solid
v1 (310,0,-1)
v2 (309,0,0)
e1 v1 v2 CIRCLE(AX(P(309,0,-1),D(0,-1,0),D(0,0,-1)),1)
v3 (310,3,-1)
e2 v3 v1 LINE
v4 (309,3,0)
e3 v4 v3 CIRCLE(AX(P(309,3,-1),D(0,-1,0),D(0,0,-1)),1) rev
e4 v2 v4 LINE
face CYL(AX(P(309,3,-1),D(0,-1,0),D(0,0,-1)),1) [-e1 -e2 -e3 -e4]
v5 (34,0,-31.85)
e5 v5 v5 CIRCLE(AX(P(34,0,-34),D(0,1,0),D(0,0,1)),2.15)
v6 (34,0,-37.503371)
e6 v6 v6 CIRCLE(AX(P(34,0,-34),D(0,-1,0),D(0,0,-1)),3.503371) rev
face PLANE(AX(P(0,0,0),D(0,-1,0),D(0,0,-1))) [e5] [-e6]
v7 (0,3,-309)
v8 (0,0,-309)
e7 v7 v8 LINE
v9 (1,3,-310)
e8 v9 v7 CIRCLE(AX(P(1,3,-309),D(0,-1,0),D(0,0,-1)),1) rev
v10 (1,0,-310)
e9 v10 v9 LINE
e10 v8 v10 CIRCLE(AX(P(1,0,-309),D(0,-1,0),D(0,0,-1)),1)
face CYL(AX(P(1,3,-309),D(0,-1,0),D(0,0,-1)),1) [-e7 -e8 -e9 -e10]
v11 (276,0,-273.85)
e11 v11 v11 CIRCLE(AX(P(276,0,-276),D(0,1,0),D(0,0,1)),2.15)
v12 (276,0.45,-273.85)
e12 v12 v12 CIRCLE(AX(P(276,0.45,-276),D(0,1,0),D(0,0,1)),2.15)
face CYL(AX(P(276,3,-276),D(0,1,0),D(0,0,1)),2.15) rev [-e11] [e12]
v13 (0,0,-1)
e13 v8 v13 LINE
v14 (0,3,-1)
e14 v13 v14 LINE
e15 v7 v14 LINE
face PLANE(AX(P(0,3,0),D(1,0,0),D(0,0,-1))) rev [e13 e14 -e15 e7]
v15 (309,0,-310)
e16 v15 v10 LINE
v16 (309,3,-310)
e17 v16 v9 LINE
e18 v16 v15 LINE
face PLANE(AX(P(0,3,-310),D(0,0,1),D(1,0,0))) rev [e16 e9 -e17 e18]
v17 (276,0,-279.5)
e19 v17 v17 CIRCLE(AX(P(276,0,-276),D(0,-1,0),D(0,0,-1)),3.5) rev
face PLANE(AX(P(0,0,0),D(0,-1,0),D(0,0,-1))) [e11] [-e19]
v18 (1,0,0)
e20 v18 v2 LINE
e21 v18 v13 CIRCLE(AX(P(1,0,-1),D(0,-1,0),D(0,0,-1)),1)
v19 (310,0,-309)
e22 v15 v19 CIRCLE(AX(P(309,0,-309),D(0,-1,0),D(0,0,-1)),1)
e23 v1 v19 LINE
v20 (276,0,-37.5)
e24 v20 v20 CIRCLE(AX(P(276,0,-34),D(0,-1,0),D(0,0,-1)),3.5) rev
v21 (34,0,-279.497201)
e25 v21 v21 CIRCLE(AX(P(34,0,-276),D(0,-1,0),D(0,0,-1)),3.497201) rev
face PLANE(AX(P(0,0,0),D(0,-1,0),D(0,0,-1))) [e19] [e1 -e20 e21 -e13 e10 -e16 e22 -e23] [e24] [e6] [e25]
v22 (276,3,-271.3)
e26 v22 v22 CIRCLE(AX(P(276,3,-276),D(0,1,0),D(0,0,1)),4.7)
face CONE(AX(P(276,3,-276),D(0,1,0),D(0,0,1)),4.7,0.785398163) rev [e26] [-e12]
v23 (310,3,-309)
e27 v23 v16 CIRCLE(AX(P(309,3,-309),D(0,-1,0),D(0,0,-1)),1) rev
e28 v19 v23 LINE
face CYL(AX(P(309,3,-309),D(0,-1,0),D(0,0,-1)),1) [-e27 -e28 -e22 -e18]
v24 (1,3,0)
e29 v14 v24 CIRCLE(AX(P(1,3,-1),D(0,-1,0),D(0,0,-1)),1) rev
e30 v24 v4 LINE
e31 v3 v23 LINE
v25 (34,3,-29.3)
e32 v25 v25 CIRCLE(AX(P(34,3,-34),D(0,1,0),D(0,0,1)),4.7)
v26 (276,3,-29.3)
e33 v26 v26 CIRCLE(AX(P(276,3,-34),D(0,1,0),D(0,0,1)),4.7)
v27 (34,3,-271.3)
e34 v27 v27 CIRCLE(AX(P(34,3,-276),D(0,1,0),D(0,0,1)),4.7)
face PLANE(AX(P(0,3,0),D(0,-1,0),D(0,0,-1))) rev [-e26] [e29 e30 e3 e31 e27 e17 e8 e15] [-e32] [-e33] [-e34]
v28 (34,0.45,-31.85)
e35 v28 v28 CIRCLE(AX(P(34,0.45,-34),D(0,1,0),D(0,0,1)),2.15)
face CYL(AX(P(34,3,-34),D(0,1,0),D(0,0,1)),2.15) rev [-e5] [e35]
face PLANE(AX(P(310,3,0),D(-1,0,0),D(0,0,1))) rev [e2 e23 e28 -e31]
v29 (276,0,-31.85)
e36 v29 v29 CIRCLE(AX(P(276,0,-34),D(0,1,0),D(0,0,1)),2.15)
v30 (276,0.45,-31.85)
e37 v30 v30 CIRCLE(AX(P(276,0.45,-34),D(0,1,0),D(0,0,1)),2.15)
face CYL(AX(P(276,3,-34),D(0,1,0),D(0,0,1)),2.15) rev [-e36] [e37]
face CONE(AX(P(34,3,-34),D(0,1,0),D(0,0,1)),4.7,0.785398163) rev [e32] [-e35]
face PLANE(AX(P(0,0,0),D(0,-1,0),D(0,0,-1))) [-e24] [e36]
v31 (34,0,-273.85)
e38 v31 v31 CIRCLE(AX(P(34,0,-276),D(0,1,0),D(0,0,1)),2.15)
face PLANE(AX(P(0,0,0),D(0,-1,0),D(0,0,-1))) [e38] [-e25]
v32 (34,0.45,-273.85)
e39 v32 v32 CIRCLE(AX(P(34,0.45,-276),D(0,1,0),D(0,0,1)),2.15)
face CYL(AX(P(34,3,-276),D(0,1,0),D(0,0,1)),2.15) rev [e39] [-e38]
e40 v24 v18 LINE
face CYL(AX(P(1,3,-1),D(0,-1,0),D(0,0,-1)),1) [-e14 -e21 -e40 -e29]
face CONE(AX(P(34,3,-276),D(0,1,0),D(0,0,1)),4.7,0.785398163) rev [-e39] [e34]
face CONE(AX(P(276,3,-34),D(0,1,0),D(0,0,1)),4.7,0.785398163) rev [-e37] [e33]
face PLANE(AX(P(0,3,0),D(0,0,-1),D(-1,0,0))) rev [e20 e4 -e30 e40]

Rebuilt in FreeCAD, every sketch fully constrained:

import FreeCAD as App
import Part
import Sketcher
Q = App.Units.Quantity


def edges_at(feature, points):
    """Names of the edges that pass closest to the given points."""
    edges = feature.Shape.Edges
    near = lambda p: min(range(len(edges)), key=lambda i: edges[i].distToShape(Part.Vertex(*p))[0])
    return sorted({f"Edge{near(p) + 1}" for p in points})


def add_polygon(sketch, points):
    """Adds a closed chain of lines whose ends are joined by coincident constraints."""
    first, n = sketch.GeometryCount, len(points)
    for a, b in zip(points, points[1:] + points[:1]):
        sketch.addGeometry(Part.LineSegment(App.Vector(*a, 0), App.Vector(*b, 0)), False)
    for i in range(n):
        sketch.addConstraint(Sketcher.Constraint("Coincident", first + i, 2, first + (i + 1) % n, 1))

doc = App.newDocument("Part")
body = doc.addObject("PartDesign::Body", "Body")

# Sketch on XZ plane
sketch1 = doc.addObject("Sketcher::SketchObject", "Sketch")
body.addObject(sketch1)
sketch1.AttachmentSupport = (doc.XZ_Plane, [""])
sketch1.MapMode = "FlatFace"
add_polygon(sketch1, [(0, -310), (0, 0), (310, 0), (310, -310)])  # lines 0-3
sketch1.addConstraint([
    Sketcher.Constraint("Vertical", 0),
    Sketcher.Constraint("Horizontal", 1),
    Sketcher.Constraint("Vertical", 2),
    Sketcher.Constraint("Horizontal", 3),
    Sketcher.Constraint("Coincident", 0, 2, -1, 1),
    Sketcher.Constraint("Equal", 3, 0),
    Sketcher.Constraint("DistanceX", 1, 1, 1, 2, 310.0),
])
pad1 = doc.addObject("PartDesign::Pad", "Pad")
body.addObject(pad1)
pad1.Profile = sketch1
pad1.Length = 3
pad1.Reversed = True
doc.recompute()

fillet = doc.addObject("PartDesign::Fillet", "Fillet")
body.addObject(fillet)
fillet.Base = (pad1, edges_at(pad1, [
    (0, 1.5, -310),
    (310, 1.5, -310),
    (310, 1.5, 0),
    (0, 1.5, 0),
]))
fillet.Radius = 1

# Sketch on YZ plane
sketch2 = doc.addObject("Sketcher::SketchObject", "Sketch001")
body.addObject(sketch2)
sketch2.AttachmentSupport = (doc.YZ_Plane, [""])
sketch2.MapMode = "FlatFace"
sketch2.AttachmentOffset = App.Placement(App.Vector(0, 0, 34), App.Rotation())
add_polygon(sketch2, [(0, -276), (3, -276), (3, -271.3), (0.45, -273.85), (0, -273.85)])  # lines 0-4
sketch2.addGeometry(Part.LineSegment(App.Vector(3, -276, 0), App.Vector(0, -276, 0)), True)  # axis
sketch2.addConstraint([
    Sketcher.Constraint("Horizontal", 0),
    Sketcher.Constraint("Vertical", 1),
    Sketcher.Constraint("Horizontal", 3),
    Sketcher.Constraint("Vertical", 4),
    Sketcher.Constraint("Horizontal", 5),
    Sketcher.Constraint("Coincident", 5, 1, 0, 2),
    Sketcher.Constraint("PointOnObject", 3, 2, -2),
    Sketcher.Constraint("PointOnObject", 5, 2, -2),
    Sketcher.Constraint("DistanceX", 0, 1, 0, 2, 3.0),
    Sketcher.Constraint("Angle", 2, Q("-135 deg")),
    Sketcher.Constraint("DistanceY", 1, 1, 1, 2, 4.7),
    Sketcher.Constraint("DistanceY", 0, 2, -1, 1, 276.0),
    Sketcher.Constraint("DistanceX", 3, 2, 3, 1, 0.45),
])
groove = doc.addObject("PartDesign::Groove", "Groove")
body.addObject(groove)
groove.Profile = sketch2
groove.ReferenceAxis = (sketch2, ["Axis0"])
groove.Angle = 360
doc.recompute()

linearpattern = doc.addObject("PartDesign::LinearPattern", "LinearPattern")
body.addObject(linearpattern)
linearpattern.Originals = [groove]
linearpattern.Direction = (doc.Z_Axis, [""])
linearpattern.Mode = "offset"
linearpattern.Offset = 242
linearpattern.Occurrences = 2
body.Tip = linearpattern
doc.recompute()

datumline = doc.addObject("PartDesign::Line", "DatumLine")
body.addObject(datumline)
datumline.Placement = App.Placement(App.Vector(0, 0, 0), App.Rotation(App.Vector(0, 0, 1), App.Vector(0.707106781, 0, 0.707106781)))
linearpattern2 = doc.addObject("PartDesign::LinearPattern", "LinearPattern001")
body.addObject(linearpattern2)
linearpattern2.Originals = [groove]
linearpattern2.Direction = (datumline, [""])
linearpattern2.Mode = "offset"
linearpattern2.Offset = 342.239682
linearpattern2.Occurrences = 2
body.Tip = linearpattern2
doc.recompute()

linearpattern3 = doc.addObject("PartDesign::LinearPattern", "LinearPattern002")
body.addObject(linearpattern3)
linearpattern3.Originals = [groove]
linearpattern3.Direction = (doc.X_Axis, [""])
linearpattern3.Mode = "offset"
linearpattern3.Offset = 242
linearpattern3.Occurrences = 2
body.Tip = linearpattern3

doc.recompute()
